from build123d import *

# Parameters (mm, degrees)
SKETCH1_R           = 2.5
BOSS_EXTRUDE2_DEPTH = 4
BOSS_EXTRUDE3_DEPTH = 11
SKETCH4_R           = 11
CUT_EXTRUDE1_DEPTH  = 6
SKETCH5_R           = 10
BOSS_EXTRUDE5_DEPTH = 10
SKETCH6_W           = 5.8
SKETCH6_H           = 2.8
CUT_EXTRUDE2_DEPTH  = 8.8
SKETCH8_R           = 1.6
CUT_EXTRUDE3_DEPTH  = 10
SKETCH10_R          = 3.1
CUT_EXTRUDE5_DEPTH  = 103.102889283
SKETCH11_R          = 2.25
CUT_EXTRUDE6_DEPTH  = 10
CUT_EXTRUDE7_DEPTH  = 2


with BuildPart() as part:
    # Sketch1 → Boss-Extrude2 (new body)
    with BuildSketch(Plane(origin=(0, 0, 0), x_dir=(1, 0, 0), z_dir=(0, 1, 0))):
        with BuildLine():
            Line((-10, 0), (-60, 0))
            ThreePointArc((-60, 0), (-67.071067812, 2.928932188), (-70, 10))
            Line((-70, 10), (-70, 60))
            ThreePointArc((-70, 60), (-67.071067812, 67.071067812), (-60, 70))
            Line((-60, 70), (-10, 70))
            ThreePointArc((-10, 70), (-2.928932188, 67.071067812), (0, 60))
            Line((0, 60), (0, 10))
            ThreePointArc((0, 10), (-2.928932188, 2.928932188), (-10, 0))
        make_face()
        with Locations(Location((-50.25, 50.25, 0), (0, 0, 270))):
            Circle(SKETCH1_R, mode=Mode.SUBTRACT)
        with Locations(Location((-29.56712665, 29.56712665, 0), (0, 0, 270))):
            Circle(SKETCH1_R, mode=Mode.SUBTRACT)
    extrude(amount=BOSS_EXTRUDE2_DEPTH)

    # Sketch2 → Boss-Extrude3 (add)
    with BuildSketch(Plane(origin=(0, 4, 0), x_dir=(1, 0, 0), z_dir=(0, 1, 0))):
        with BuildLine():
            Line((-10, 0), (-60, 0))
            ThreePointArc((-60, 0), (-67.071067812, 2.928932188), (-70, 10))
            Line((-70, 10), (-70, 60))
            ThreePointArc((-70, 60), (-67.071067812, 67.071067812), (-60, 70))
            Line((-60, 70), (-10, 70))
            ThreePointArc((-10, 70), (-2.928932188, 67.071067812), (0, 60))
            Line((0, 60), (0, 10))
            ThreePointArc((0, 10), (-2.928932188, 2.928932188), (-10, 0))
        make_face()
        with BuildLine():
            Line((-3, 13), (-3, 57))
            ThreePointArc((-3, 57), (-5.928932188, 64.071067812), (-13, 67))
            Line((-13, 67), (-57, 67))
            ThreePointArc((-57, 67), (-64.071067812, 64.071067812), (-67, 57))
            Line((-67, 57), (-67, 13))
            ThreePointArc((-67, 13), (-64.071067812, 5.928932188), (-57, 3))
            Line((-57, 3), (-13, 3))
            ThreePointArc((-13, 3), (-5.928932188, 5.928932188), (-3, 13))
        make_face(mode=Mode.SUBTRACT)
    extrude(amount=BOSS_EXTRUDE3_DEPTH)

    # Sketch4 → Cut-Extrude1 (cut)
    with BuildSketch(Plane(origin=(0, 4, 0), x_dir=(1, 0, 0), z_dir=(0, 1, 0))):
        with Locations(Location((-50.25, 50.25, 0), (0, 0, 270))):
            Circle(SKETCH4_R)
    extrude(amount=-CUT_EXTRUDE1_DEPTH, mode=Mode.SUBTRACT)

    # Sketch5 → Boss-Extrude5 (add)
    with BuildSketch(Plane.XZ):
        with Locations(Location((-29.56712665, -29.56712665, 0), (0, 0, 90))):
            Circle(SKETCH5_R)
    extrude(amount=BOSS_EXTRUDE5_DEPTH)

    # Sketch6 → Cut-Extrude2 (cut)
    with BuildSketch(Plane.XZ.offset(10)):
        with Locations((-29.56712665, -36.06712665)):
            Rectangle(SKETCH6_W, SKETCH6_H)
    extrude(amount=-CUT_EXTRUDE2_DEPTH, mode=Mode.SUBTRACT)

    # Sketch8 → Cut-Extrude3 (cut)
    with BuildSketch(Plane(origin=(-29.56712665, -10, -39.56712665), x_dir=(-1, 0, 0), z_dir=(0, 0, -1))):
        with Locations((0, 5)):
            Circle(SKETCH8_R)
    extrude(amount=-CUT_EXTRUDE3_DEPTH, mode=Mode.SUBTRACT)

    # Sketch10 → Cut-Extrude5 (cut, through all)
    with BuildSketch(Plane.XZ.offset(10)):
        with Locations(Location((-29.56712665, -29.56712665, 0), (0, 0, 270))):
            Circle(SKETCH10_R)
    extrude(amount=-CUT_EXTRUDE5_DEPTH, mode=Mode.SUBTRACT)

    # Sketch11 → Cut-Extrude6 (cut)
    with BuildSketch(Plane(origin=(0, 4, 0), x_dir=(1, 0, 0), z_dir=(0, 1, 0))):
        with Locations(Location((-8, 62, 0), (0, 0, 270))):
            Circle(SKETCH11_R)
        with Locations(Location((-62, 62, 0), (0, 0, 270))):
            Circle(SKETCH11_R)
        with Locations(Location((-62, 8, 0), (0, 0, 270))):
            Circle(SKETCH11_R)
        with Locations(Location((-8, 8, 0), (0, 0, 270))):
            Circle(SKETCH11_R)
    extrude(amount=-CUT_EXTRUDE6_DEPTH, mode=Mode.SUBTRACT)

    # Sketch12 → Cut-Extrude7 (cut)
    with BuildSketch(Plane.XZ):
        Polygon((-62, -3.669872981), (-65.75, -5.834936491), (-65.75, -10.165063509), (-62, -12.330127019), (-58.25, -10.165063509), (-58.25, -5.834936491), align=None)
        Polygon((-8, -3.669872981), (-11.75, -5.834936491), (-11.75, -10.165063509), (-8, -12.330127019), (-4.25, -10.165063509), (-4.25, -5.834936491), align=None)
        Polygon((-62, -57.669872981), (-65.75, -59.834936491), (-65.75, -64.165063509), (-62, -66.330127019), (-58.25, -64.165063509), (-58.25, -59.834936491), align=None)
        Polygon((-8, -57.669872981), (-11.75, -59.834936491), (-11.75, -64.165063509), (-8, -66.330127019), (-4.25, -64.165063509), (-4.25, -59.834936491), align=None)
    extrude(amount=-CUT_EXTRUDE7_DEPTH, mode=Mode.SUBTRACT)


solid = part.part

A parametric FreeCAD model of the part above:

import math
import FreeCAD as App
import Part
import Sketcher

V = App.Vector
Q = App.Units.Quantity

doc = App.newDocument("Part")
body = doc.addObject("PartDesign::Body", "Body")

sketch1 = body.newObject("Sketcher::SketchObject", "Sketch")
sketch1.AttachmentSupport = (doc.getObject("XZ_Plane"), [""])
sketch1.MapMode = "FlatFace"
sketch1.addGeometry([
    Part.LineSegment(V(-60, 0, 0), V(-10, 0, 0)),
    Part.ArcOfCircle(Part.Circle(V(-10, -10, 0), V(0, 0, 1), 10), math.radians(0), math.radians(90)),
    Part.LineSegment(V(0, -10, 0), V(0, -60, 0)),
    Part.ArcOfCircle(Part.Circle(V(-10, -60, 0), V(0, 0, 1), 10), math.radians(-90), math.radians(0)),
    Part.LineSegment(V(-10, -70, 0), V(-60, -70, 0)),
    Part.ArcOfCircle(Part.Circle(V(-60, -60, 0), V(0, 0, 1), 10), math.radians(180), math.radians(270)),
    Part.LineSegment(V(-70, -60, 0), V(-70, -10, 0)),
    Part.ArcOfCircle(Part.Circle(V(-60, -10, 0), V(0, 0, 1), 10), math.radians(90), math.radians(180)),
    Part.Circle(V(-29.6, -29.6, 0), V(0, 0, 1), 2.5),
    Part.Circle(V(-50.2, -50.2, 0), V(0, 0, 1), 2.5),
], False)
sketch1.addConstraint([
    Sketcher.Constraint("Tangent", 0, 2, 1, 2),
    Sketcher.Constraint("Tangent", 1, 1, 2, 1),
    Sketcher.Constraint("Tangent", 2, 2, 3, 2),
    Sketcher.Constraint("Tangent", 3, 1, 4, 1),
    Sketcher.Constraint("Tangent", 4, 2, 5, 2),
    Sketcher.Constraint("Tangent", 5, 1, 6, 1),
    Sketcher.Constraint("Tangent", 6, 2, 7, 2),
    Sketcher.Constraint("Tangent", 7, 1, 0, 1),
    Sketcher.Constraint("Horizontal", 0),
    Sketcher.Constraint("Vertical", 2),
    Sketcher.Constraint("Horizontal", 4),
    Sketcher.Constraint("Vertical", 6),
    Sketcher.Constraint("Equal", 1, 3),
    Sketcher.Constraint("Equal", 3, 5),
    Sketcher.Constraint("Equal", 5, 7),
    Sketcher.Constraint("Equal", 8, 9),
    Sketcher.Constraint("PointOnObject", 0, 2, -1),
    Sketcher.Constraint("PointOnObject", 1, 1, -2),
    Sketcher.Constraint("Equal", 4, 2),
    Sketcher.Constraint("Diameter", 8, 5.0),
    Sketcher.Constraint("Radius", 1, 10.0),
    Sketcher.Constraint("DistanceX", 0, 1, 0, 2, 50.0),
    Sketcher.Constraint("DistanceX", 9, 3, -1, 1, 50.25),
    Sketcher.Constraint("DistanceY", 9, 3, -1, 1, 50.25),
    Sketcher.Constraint("DistanceX", 8, 3, -1, 1, 29.567127),
    Sketcher.Constraint("DistanceY", 8, 3, -1, 1, 29.567127),
])
pad1 = body.newObject("PartDesign::Pad", "Pad")
pad1.Profile = sketch1
pad1.Length = 4
pad1.Reversed = True

sketch2 = body.newObject("Sketcher::SketchObject", "Sketch001")
sketch2.AttachmentSupport = (doc.getObject("XZ_Plane"), [""])
sketch2.MapMode = "FlatFace"
sketch2.AttachmentOffset = App.Placement(V(0, 0, -4), App.Rotation())
sketch2.addGeometry([
    Part.LineSegment(V(-60, 0, 0), V(-10, 0, 0)),
    Part.ArcOfCircle(Part.Circle(V(-10, -10, 0), V(0, 0, 1), 10), math.radians(0), math.radians(90)),
    Part.LineSegment(V(0, -10, 0), V(0, -60, 0)),
    Part.ArcOfCircle(Part.Circle(V(-10, -60, 0), V(0, 0, 1), 10), math.radians(-90), math.radians(0)),
    Part.LineSegment(V(-10, -70, 0), V(-60, -70, 0)),
    Part.ArcOfCircle(Part.Circle(V(-60, -60, 0), V(0, 0, 1), 10), math.radians(180), math.radians(270)),
    Part.LineSegment(V(-70, -60, 0), V(-70, -10, 0)),
    Part.ArcOfCircle(Part.Circle(V(-60, -10, 0), V(0, 0, 1), 10), math.radians(90), math.radians(180)),
    Part.ArcOfCircle(Part.Circle(V(-13, -13, 0), V(0, 0, 1), 10), math.radians(0), math.radians(90)),
    Part.LineSegment(V(-13, -3, 0), V(-57, -3, 0)),
    Part.ArcOfCircle(Part.Circle(V(-57, -13, 0), V(0, 0, 1), 10), math.radians(90), math.radians(180)),
    Part.LineSegment(V(-67, -13, 0), V(-67, -57, 0)),
    Part.ArcOfCircle(Part.Circle(V(-57, -57, 0), V(0, 0, 1), 10), math.radians(180), math.radians(270)),
    Part.LineSegment(V(-57, -67, 0), V(-13, -67, 0)),
    Part.ArcOfCircle(Part.Circle(V(-13, -57, 0), V(0, 0, 1), 10), math.radians(-90), math.radians(0)),
    Part.LineSegment(V(-3, -57, 0), V(-3, -13, 0)),
], False)
sketch2.addConstraint([
    Sketcher.Constraint("Tangent", 0, 2, 1, 2),
    Sketcher.Constraint("Tangent", 1, 1, 2, 1),
    Sketcher.Constraint("Tangent", 2, 2, 3, 2),
    Sketcher.Constraint("Tangent", 3, 1, 4, 1),
    Sketcher.Constraint("Tangent", 4, 2, 5, 2),
    Sketcher.Constraint("Tangent", 5, 1, 6, 1),
    Sketcher.Constraint("Tangent", 6, 2, 7, 2),
    Sketcher.Constraint("Tangent", 7, 1, 0, 1),
    Sketcher.Constraint("Tangent", 8, 2, 9, 1),
    Sketcher.Constraint("Tangent", 9, 2, 10, 1),
    Sketcher.Constraint("Tangent", 10, 2, 11, 1),
    Sketcher.Constraint("Tangent", 11, 2, 12, 1),
    Sketcher.Constraint("Tangent", 12, 2, 13, 1),
    Sketcher.Constraint("Tangent", 13, 2, 14, 1),
    Sketcher.Constraint("Tangent", 14, 2, 15, 1),
    Sketcher.Constraint("Tangent", 15, 2, 8, 1),
    Sketcher.Constraint("Horizontal", 0),
    Sketcher.Constraint("Vertical", 2),
    Sketcher.Constraint("Horizontal", 4),
    Sketcher.Constraint("Vertical", 6),
    Sketcher.Constraint("Horizontal", 9),
    Sketcher.Constraint("Vertical", 11),
    Sketcher.Constraint("Horizontal", 13),
    Sketcher.Constraint("Vertical", 15),
    Sketcher.Constraint("Equal", 1, 3),
    Sketcher.Constraint("Equal", 3, 5),
    Sketcher.Constraint("Equal", 5, 7),
    Sketcher.Constraint("Equal", 7, 8),
    Sketcher.Constraint("Equal", 8, 10),
    Sketcher.Constraint("Equal", 10, 12),
    Sketcher.Constraint("Equal", 12, 14),
    Sketcher.Constraint("PointOnObject", 0, 2, -1),
    Sketcher.Constraint("PointOnObject", 1, 1, -2),
    Sketcher.Constraint("Equal", 4, 2),
    Sketcher.Constraint("Equal", 13, 11),
    Sketcher.Constraint("Radius", 1, 10.0),
    Sketcher.Constraint("DistanceX", 0, 1, 0, 2, 50.0),
    Sketcher.Constraint("DistanceX", 9, 2, 9, 1, 44.0),
    Sketcher.Constraint("DistanceX", 8, 3, -1, 1, 13.0),
    Sketcher.Constraint("DistanceY", 8, 3, -1, 1, 13.0),
])
pad2 = body.newObject("PartDesign::Pad", "Pad001")
pad2.Profile = sketch2
pad2.Length = 11
pad2.Reversed = True

sketch3 = body.newObject("Sketcher::SketchObject", "Sketch002")
sketch3.AttachmentSupport = (doc.getObject("XZ_Plane"), [""])
sketch3.MapMode = "FlatFace"
sketch3.AttachmentOffset = App.Placement(V(0, 0, -4), App.Rotation())
sketch3.addGeometry(Part.Circle(V(-50, -50, 0), V(0, 0, 1), 11), False)
sketch3.addConstraint([
    Sketcher.Constraint("Diameter", 0, 22.0),
    Sketcher.Constraint("DistanceX", 0, 3, -1, 1, 50.25),
    Sketcher.Constraint("DistanceY", 0, 3, -1, 1, 50.25),
])
pocket1 = body.newObject("PartDesign::Pocket", "Pocket")
pocket1.Profile = sketch3
pocket1.Length = 6
pocket1.Reversed = True

sketch4 = body.newObject("Sketcher::SketchObject", "Sketch003")
sketch4.AttachmentSupport = (doc.getObject("XZ_Plane"), [""])
sketch4.MapMode = "FlatFace"
sketch4.addGeometry(Part.Circle(V(-30, -30, 0), V(0, 0, 1), 10), False)
sketch4.addConstraint([
    Sketcher.Constraint("Diameter", 0, 20.0),
    Sketcher.Constraint("DistanceX", 0, 3, -1, 1, 29.567127),
    Sketcher.Constraint("DistanceY", 0, 3, -1, 1, 29.567127),
])
pad3 = body.newObject("PartDesign::Pad", "Pad002")
pad3.Profile = sketch4
pad3.Length = 10

sketch5 = body.newObject("Sketcher::SketchObject", "Sketch004")
sketch5.AttachmentSupport = (doc.getObject("XZ_Plane"), [""])
sketch5.MapMode = "FlatFace"
sketch5.AttachmentOffset = App.Placement(V(0, 0, 10), App.Rotation())
sketch5.addGeometry([
    Part.LineSegment(V(-32.5, -34.7, 0), V(-32.5, -37.5, 0)),
    Part.LineSegment(V(-32.5, -37.5, 0), V(-26.7, -37.5, 0)),
    Part.LineSegment(V(-26.7, -37.5, 0), V(-26.7, -34.7, 0)),
    Part.LineSegment(V(-26.7, -34.7, 0), V(-32.5, -34.7, 0)),
], False)
sketch5.addConstraint([
    Sketcher.Constraint("Coincident", 0, 2, 1, 1),
    Sketcher.Constraint("Coincident", 1, 2, 2, 1),
    Sketcher.Constraint("Coincident", 2, 2, 3, 1),
    Sketcher.Constraint("Coincident", 3, 2, 0, 1),
    Sketcher.Constraint("Vertical", 0),
    Sketcher.Constraint("Horizontal", 1),
    Sketcher.Constraint("Vertical", 2),
    Sketcher.Constraint("Horizontal", 3),
    Sketcher.Constraint("DistanceX", 1, 1, 1, 2, 5.8),
    Sketcher.Constraint("DistanceY", 0, 2, 0, 1, 2.8),
    Sketcher.Constraint("DistanceX", 0, 2, -1, 1, 32.467127),
    Sketcher.Constraint("DistanceY", 0, 2, -1, 1, 37.467127),
])
pocket2 = body.newObject("PartDesign::Pocket", "Pocket001")
pocket2.Profile = sketch5
pocket2.Length = 8.8

sketch6 = body.newObject("Sketcher::SketchObject", "Sketch005")
sketch6.AttachmentSupport = (doc.getObject("XY_Plane"), [""])
sketch6.MapMode = "FlatFace"
sketch6.AttachmentOffset = App.Placement(V(0, 0, -39.567127), App.Rotation())
sketch6.addGeometry(Part.Circle(V(-29.6, -5, 0), V(0, 0, 1), 1.6), False)
sketch6.addConstraint([
    Sketcher.Constraint("Diameter", 0, 3.2),
    Sketcher.Constraint("DistanceY", 0, 3, -1, 1, 5.0),
    Sketcher.Constraint("DistanceX", 0, 3, -1, 1, 29.567127),
])
pocket3 = body.newObject("PartDesign::Pocket", "Pocket002")
pocket3.Profile = sketch6
pocket3.Length = 10
pocket3.Reversed = True

sketch7 = body.newObject("Sketcher::SketchObject", "Sketch006")
sketch7.AttachmentSupport = (doc.getObject("XZ_Plane"), [""])
sketch7.MapMode = "FlatFace"
sketch7.AttachmentOffset = App.Placement(V(0, 0, 10), App.Rotation())
sketch7.addGeometry(Part.Circle(V(-29.6, -29.6, 0), V(0, 0, 1), 3.1), False)
sketch7.addConstraint([
    Sketcher.Constraint("Diameter", 0, 6.2),
    Sketcher.Constraint("DistanceX", 0, 3, -1, 1, 29.567127),
    Sketcher.Constraint("DistanceY", 0, 3, -1, 1, 29.567127),
])
pocket4 = body.newObject("PartDesign::Pocket", "Pocket003")
pocket4.Profile = sketch7
pocket4.Type = "ThroughAll"

sketch8 = body.newObject("Sketcher::SketchObject", "Sketch007")
sketch8.AttachmentSupport = (doc.getObject("XZ_Plane"), [""])
sketch8.MapMode = "FlatFace"
sketch8.AttachmentOffset = App.Placement(V(0, 0, -4), App.Rotation())
sketch8.addGeometry([
    Part.Circle(V(-8, -62, 0), V(0, 0, 1), 2.2),
    Part.Circle(V(-62, -62, 0), V(0, 0, 1), 2.2),
    Part.Circle(V(-62, -8, 0), V(0, 0, 1), 2.2),
    Part.Circle(V(-8, -8, 0), V(0, 0, 1), 2.2),
], False)
sketch8.addConstraint([
    Sketcher.Constraint("Equal", 0, 1),
    Sketcher.Constraint("Equal", 1, 2),
    Sketcher.Constraint("Equal", 2, 3),
    Sketcher.Constraint("Horizontal", 0, 3, 1, 3),
    Sketcher.Constraint("Horizontal", 2, 3, 3, 3),
    Sketcher.Constraint("Vertical", 1, 3, 2, 3),
    Sketcher.Constraint("Vertical", 0, 3, 3, 3),
    Sketcher.Constraint("Diameter", 0, 4.5),
    Sketcher.Constraint("DistanceX", 0, 3, -1, 1, 8.0),
    Sketcher.Constraint("DistanceY", 0, 3, -1, 1, 62.0),
    Sketcher.Constraint("DistanceX", 1, 3, -1, 1, 62.0),
    Sketcher.Constraint("DistanceY", 2, 3, -1, 1, 8.0),
])
pocket5 = body.newObject("PartDesign::Pocket", "Pocket004")
pocket5.Profile = sketch8
pocket5.Length = 10
pocket5.Reversed = True

sketch9 = body.newObject("Sketcher::SketchObject", "Sketch008")
sketch9.AttachmentSupport = (doc.getObject("XZ_Plane"), [""])
sketch9.MapMode = "FlatFace"
sketch9.addGeometry([
    Part.LineSegment(V(-62, -3.7, 0), V(-65.8, -5.8, 0)),
    Part.LineSegment(V(-65.8, -5.8, 0), V(-65.8, -10.2, 0)),
    Part.LineSegment(V(-65.8, -10.2, 0), V(-62, -12.3, 0)),
    Part.LineSegment(V(-62, -12.3, 0), V(-58.2, -10.2, 0)),
    Part.LineSegment(V(-58.2, -10.2, 0), V(-58.2, -5.8, 0)),
    Part.LineSegment(V(-58.2, -5.8, 0), V(-62, -3.7, 0)),
    Part.LineSegment(V(-8, -3.7, 0), V(-11.8, -5.8, 0)),
    Part.LineSegment(V(-11.8, -5.8, 0), V(-11.8, -10.2, 0)),
    Part.LineSegment(V(-11.8, -10.2, 0), V(-8, -12.3, 0)),
    Part.LineSegment(V(-8, -12.3, 0), V(-4.2, -10.2, 0)),
    Part.LineSegment(V(-4.2, -10.2, 0), V(-4.2, -5.8, 0)),
    Part.LineSegment(V(-4.2, -5.8, 0), V(-8, -3.7, 0)),
    Part.LineSegment(V(-62, -57.7, 0), V(-65.8, -59.8, 0)),
    Part.LineSegment(V(-65.8, -59.8, 0), V(-65.8, -64.2, 0)),
    Part.LineSegment(V(-65.8, -64.2, 0), V(-62, -66.3, 0)),
    Part.LineSegment(V(-62, -66.3, 0), V(-58.2, -64.2, 0)),
    Part.LineSegment(V(-58.2, -64.2, 0), V(-58.2, -59.8, 0)),
    Part.LineSegment(V(-58.2, -59.8, 0), V(-62, -57.7, 0)),
    Part.LineSegment(V(-8, -57.7, 0), V(-11.8, -59.8, 0)),
    Part.LineSegment(V(-11.8, -59.8, 0), V(-11.8, -64.2, 0)),
    Part.LineSegment(V(-11.8, -64.2, 0), V(-8, -66.3, 0)),
    Part.LineSegment(V(-8, -66.3, 0), V(-4.2, -64.2, 0)),
    Part.LineSegment(V(-4.2, -64.2, 0), V(-4.2, -59.8, 0)),
    Part.LineSegment(V(-4.2, -59.8, 0), V(-8, -57.7, 0)),
], False)
sketch9.addConstraint([
    Sketcher.Constraint("Coincident", 0, 2, 1, 1),
    Sketcher.Constraint("Coincident", 1, 2, 2, 1),
    Sketcher.Constraint("Coincident", 2, 2, 3, 1),
    Sketcher.Constraint("Coincident", 3, 2, 4, 1),
    Sketcher.Constraint("Coincident", 4, 2, 5, 1),
    Sketcher.Constraint("Coincident", 5, 2, 0, 1),
    Sketcher.Constraint("Coincident", 6, 2, 7, 1),
    Sketcher.Constraint("Coincident", 7, 2, 8, 1),
    Sketcher.Constraint("Coincident", 8, 2, 9, 1),
    Sketcher.Constraint("Coincident", 9, 2, 10, 1),
    Sketcher.Constraint("Coincident", 10, 2, 11, 1),
    Sketcher.Constraint("Coincident", 11, 2, 6, 1),
    Sketcher.Constraint("Coincident", 12, 2, 13, 1),
    Sketcher.Constraint("Coincident", 13, 2, 14, 1),
    Sketcher.Constraint("Coincident", 14, 2, 15, 1),
    Sketcher.Constraint("Coincident", 15, 2, 16, 1),
    Sketcher.Constraint("Coincident", 16, 2, 17, 1),
    Sketcher.Constraint("Coincident", 17, 2, 12, 1),
    Sketcher.Constraint("Coincident", 18, 2, 19, 1),
    Sketcher.Constraint("Coincident", 19, 2, 20, 1),
    Sketcher.Constraint("Coincident", 20, 2, 21, 1),
    Sketcher.Constraint("Coincident", 21, 2, 22, 1),
    Sketcher.Constraint("Coincident", 22, 2, 23, 1),
    Sketcher.Constraint("Coincident", 23, 2, 18, 1),
    Sketcher.Constraint("Vertical", 1),
    Sketcher.Constraint("Vertical", 4),
    Sketcher.Constraint("Vertical", 7),
    Sketcher.Constraint("Vertical", 10),
    Sketcher.Constraint("Vertical", 13),
    Sketcher.Constraint("Vertical", 16),
    Sketcher.Constraint("Vertical", 19),
    Sketcher.Constraint("Vertical", 22),
    Sketcher.Constraint("Parallel", 0, 3),
    Sketcher.Constraint("Parallel", 2, 5),
    Sketcher.Constraint("Parallel", 3, 6),
    Sketcher.Constraint("Parallel", 5, 8),
    Sketcher.Constraint("Parallel", 6, 9),
    Sketcher.Constraint("Parallel", 8, 11),
    Sketcher.Constraint("Parallel", 9, 12),
    Sketcher.Constraint("Parallel", 11, 14),
    Sketcher.Constraint("Parallel", 12, 15),
    Sketcher.Constraint("Parallel", 14, 17),
    Sketcher.Constraint("Parallel", 15, 18),
    Sketcher.Constraint("Parallel", 17, 20),
    Sketcher.Constraint("Parallel", 18, 21),
    Sketcher.Constraint("Parallel", 20, 23),
    Sketcher.Constraint("Horizontal", 1, 2, 3, 2),
    Sketcher.Constraint("Horizontal", 0, 2, 4, 2),
    Sketcher.Constraint("Horizontal", 4, 2, 6, 2),
    Sketcher.Constraint("Horizontal", 3, 2, 7, 2),
    Sketcher.Constraint("Horizontal", 2, 2, 8, 2),
    Sketcher.Constraint("Horizontal", 7, 2, 9, 2),
    Sketcher.Constraint("Horizontal", 6, 2, 10, 2),
    Sketcher.Constraint("Horizontal", 13, 2, 15, 2),
    Sketcher.Constraint("Horizontal", 12, 2, 16, 2),
    Sketcher.Constraint("Horizontal", 16, 2, 18, 2),
    Sketcher.Constraint("Horizontal", 15, 2, 19, 2),
    Sketcher.Constraint("Horizontal", 14, 2, 20, 2),
    Sketcher.Constraint("Horizontal", 19, 2, 21, 2),
    Sketcher.Constraint("Horizontal", 18, 2, 22, 2),
    Sketcher.Constraint("Vertical", 2, 2, 5, 2),
    Sketcher.Constraint("Vertical", 1, 2, 12, 2),
    Sketcher.Constraint("Vertical", 5, 2, 14, 2),
    Sketcher.Constraint("Vertical", 7, 2, 18, 2),
    Sketcher.Constraint("Equal", 10, 13),
    Sketcher.Constraint("Angle", 0, Q("-150 deg")),
    Sketcher.Constraint("DistanceX", 2, 2, -1, 1, 62.0),
    Sketcher.Constraint("DistanceX", 8, 2, -1, 1, 8.0),
    Sketcher.Constraint("DistanceY", 12, 2, 0, 2, 54.0),
    Sketcher.Constraint("DistanceX", 1, 2, 3, 2, 7.5),
    Sketcher.Constraint("DistanceY", 1, 2, 1, 1, 4.330127),
    Sketcher.Constraint("DistanceY", 0, 2, -1, 1, 5.834936),
])
pocket6 = body.newObject("PartDesign::Pocket", "Pocket005")
pocket6.Profile = sketch9
pocket6.Length = 2

doc.recompute()
